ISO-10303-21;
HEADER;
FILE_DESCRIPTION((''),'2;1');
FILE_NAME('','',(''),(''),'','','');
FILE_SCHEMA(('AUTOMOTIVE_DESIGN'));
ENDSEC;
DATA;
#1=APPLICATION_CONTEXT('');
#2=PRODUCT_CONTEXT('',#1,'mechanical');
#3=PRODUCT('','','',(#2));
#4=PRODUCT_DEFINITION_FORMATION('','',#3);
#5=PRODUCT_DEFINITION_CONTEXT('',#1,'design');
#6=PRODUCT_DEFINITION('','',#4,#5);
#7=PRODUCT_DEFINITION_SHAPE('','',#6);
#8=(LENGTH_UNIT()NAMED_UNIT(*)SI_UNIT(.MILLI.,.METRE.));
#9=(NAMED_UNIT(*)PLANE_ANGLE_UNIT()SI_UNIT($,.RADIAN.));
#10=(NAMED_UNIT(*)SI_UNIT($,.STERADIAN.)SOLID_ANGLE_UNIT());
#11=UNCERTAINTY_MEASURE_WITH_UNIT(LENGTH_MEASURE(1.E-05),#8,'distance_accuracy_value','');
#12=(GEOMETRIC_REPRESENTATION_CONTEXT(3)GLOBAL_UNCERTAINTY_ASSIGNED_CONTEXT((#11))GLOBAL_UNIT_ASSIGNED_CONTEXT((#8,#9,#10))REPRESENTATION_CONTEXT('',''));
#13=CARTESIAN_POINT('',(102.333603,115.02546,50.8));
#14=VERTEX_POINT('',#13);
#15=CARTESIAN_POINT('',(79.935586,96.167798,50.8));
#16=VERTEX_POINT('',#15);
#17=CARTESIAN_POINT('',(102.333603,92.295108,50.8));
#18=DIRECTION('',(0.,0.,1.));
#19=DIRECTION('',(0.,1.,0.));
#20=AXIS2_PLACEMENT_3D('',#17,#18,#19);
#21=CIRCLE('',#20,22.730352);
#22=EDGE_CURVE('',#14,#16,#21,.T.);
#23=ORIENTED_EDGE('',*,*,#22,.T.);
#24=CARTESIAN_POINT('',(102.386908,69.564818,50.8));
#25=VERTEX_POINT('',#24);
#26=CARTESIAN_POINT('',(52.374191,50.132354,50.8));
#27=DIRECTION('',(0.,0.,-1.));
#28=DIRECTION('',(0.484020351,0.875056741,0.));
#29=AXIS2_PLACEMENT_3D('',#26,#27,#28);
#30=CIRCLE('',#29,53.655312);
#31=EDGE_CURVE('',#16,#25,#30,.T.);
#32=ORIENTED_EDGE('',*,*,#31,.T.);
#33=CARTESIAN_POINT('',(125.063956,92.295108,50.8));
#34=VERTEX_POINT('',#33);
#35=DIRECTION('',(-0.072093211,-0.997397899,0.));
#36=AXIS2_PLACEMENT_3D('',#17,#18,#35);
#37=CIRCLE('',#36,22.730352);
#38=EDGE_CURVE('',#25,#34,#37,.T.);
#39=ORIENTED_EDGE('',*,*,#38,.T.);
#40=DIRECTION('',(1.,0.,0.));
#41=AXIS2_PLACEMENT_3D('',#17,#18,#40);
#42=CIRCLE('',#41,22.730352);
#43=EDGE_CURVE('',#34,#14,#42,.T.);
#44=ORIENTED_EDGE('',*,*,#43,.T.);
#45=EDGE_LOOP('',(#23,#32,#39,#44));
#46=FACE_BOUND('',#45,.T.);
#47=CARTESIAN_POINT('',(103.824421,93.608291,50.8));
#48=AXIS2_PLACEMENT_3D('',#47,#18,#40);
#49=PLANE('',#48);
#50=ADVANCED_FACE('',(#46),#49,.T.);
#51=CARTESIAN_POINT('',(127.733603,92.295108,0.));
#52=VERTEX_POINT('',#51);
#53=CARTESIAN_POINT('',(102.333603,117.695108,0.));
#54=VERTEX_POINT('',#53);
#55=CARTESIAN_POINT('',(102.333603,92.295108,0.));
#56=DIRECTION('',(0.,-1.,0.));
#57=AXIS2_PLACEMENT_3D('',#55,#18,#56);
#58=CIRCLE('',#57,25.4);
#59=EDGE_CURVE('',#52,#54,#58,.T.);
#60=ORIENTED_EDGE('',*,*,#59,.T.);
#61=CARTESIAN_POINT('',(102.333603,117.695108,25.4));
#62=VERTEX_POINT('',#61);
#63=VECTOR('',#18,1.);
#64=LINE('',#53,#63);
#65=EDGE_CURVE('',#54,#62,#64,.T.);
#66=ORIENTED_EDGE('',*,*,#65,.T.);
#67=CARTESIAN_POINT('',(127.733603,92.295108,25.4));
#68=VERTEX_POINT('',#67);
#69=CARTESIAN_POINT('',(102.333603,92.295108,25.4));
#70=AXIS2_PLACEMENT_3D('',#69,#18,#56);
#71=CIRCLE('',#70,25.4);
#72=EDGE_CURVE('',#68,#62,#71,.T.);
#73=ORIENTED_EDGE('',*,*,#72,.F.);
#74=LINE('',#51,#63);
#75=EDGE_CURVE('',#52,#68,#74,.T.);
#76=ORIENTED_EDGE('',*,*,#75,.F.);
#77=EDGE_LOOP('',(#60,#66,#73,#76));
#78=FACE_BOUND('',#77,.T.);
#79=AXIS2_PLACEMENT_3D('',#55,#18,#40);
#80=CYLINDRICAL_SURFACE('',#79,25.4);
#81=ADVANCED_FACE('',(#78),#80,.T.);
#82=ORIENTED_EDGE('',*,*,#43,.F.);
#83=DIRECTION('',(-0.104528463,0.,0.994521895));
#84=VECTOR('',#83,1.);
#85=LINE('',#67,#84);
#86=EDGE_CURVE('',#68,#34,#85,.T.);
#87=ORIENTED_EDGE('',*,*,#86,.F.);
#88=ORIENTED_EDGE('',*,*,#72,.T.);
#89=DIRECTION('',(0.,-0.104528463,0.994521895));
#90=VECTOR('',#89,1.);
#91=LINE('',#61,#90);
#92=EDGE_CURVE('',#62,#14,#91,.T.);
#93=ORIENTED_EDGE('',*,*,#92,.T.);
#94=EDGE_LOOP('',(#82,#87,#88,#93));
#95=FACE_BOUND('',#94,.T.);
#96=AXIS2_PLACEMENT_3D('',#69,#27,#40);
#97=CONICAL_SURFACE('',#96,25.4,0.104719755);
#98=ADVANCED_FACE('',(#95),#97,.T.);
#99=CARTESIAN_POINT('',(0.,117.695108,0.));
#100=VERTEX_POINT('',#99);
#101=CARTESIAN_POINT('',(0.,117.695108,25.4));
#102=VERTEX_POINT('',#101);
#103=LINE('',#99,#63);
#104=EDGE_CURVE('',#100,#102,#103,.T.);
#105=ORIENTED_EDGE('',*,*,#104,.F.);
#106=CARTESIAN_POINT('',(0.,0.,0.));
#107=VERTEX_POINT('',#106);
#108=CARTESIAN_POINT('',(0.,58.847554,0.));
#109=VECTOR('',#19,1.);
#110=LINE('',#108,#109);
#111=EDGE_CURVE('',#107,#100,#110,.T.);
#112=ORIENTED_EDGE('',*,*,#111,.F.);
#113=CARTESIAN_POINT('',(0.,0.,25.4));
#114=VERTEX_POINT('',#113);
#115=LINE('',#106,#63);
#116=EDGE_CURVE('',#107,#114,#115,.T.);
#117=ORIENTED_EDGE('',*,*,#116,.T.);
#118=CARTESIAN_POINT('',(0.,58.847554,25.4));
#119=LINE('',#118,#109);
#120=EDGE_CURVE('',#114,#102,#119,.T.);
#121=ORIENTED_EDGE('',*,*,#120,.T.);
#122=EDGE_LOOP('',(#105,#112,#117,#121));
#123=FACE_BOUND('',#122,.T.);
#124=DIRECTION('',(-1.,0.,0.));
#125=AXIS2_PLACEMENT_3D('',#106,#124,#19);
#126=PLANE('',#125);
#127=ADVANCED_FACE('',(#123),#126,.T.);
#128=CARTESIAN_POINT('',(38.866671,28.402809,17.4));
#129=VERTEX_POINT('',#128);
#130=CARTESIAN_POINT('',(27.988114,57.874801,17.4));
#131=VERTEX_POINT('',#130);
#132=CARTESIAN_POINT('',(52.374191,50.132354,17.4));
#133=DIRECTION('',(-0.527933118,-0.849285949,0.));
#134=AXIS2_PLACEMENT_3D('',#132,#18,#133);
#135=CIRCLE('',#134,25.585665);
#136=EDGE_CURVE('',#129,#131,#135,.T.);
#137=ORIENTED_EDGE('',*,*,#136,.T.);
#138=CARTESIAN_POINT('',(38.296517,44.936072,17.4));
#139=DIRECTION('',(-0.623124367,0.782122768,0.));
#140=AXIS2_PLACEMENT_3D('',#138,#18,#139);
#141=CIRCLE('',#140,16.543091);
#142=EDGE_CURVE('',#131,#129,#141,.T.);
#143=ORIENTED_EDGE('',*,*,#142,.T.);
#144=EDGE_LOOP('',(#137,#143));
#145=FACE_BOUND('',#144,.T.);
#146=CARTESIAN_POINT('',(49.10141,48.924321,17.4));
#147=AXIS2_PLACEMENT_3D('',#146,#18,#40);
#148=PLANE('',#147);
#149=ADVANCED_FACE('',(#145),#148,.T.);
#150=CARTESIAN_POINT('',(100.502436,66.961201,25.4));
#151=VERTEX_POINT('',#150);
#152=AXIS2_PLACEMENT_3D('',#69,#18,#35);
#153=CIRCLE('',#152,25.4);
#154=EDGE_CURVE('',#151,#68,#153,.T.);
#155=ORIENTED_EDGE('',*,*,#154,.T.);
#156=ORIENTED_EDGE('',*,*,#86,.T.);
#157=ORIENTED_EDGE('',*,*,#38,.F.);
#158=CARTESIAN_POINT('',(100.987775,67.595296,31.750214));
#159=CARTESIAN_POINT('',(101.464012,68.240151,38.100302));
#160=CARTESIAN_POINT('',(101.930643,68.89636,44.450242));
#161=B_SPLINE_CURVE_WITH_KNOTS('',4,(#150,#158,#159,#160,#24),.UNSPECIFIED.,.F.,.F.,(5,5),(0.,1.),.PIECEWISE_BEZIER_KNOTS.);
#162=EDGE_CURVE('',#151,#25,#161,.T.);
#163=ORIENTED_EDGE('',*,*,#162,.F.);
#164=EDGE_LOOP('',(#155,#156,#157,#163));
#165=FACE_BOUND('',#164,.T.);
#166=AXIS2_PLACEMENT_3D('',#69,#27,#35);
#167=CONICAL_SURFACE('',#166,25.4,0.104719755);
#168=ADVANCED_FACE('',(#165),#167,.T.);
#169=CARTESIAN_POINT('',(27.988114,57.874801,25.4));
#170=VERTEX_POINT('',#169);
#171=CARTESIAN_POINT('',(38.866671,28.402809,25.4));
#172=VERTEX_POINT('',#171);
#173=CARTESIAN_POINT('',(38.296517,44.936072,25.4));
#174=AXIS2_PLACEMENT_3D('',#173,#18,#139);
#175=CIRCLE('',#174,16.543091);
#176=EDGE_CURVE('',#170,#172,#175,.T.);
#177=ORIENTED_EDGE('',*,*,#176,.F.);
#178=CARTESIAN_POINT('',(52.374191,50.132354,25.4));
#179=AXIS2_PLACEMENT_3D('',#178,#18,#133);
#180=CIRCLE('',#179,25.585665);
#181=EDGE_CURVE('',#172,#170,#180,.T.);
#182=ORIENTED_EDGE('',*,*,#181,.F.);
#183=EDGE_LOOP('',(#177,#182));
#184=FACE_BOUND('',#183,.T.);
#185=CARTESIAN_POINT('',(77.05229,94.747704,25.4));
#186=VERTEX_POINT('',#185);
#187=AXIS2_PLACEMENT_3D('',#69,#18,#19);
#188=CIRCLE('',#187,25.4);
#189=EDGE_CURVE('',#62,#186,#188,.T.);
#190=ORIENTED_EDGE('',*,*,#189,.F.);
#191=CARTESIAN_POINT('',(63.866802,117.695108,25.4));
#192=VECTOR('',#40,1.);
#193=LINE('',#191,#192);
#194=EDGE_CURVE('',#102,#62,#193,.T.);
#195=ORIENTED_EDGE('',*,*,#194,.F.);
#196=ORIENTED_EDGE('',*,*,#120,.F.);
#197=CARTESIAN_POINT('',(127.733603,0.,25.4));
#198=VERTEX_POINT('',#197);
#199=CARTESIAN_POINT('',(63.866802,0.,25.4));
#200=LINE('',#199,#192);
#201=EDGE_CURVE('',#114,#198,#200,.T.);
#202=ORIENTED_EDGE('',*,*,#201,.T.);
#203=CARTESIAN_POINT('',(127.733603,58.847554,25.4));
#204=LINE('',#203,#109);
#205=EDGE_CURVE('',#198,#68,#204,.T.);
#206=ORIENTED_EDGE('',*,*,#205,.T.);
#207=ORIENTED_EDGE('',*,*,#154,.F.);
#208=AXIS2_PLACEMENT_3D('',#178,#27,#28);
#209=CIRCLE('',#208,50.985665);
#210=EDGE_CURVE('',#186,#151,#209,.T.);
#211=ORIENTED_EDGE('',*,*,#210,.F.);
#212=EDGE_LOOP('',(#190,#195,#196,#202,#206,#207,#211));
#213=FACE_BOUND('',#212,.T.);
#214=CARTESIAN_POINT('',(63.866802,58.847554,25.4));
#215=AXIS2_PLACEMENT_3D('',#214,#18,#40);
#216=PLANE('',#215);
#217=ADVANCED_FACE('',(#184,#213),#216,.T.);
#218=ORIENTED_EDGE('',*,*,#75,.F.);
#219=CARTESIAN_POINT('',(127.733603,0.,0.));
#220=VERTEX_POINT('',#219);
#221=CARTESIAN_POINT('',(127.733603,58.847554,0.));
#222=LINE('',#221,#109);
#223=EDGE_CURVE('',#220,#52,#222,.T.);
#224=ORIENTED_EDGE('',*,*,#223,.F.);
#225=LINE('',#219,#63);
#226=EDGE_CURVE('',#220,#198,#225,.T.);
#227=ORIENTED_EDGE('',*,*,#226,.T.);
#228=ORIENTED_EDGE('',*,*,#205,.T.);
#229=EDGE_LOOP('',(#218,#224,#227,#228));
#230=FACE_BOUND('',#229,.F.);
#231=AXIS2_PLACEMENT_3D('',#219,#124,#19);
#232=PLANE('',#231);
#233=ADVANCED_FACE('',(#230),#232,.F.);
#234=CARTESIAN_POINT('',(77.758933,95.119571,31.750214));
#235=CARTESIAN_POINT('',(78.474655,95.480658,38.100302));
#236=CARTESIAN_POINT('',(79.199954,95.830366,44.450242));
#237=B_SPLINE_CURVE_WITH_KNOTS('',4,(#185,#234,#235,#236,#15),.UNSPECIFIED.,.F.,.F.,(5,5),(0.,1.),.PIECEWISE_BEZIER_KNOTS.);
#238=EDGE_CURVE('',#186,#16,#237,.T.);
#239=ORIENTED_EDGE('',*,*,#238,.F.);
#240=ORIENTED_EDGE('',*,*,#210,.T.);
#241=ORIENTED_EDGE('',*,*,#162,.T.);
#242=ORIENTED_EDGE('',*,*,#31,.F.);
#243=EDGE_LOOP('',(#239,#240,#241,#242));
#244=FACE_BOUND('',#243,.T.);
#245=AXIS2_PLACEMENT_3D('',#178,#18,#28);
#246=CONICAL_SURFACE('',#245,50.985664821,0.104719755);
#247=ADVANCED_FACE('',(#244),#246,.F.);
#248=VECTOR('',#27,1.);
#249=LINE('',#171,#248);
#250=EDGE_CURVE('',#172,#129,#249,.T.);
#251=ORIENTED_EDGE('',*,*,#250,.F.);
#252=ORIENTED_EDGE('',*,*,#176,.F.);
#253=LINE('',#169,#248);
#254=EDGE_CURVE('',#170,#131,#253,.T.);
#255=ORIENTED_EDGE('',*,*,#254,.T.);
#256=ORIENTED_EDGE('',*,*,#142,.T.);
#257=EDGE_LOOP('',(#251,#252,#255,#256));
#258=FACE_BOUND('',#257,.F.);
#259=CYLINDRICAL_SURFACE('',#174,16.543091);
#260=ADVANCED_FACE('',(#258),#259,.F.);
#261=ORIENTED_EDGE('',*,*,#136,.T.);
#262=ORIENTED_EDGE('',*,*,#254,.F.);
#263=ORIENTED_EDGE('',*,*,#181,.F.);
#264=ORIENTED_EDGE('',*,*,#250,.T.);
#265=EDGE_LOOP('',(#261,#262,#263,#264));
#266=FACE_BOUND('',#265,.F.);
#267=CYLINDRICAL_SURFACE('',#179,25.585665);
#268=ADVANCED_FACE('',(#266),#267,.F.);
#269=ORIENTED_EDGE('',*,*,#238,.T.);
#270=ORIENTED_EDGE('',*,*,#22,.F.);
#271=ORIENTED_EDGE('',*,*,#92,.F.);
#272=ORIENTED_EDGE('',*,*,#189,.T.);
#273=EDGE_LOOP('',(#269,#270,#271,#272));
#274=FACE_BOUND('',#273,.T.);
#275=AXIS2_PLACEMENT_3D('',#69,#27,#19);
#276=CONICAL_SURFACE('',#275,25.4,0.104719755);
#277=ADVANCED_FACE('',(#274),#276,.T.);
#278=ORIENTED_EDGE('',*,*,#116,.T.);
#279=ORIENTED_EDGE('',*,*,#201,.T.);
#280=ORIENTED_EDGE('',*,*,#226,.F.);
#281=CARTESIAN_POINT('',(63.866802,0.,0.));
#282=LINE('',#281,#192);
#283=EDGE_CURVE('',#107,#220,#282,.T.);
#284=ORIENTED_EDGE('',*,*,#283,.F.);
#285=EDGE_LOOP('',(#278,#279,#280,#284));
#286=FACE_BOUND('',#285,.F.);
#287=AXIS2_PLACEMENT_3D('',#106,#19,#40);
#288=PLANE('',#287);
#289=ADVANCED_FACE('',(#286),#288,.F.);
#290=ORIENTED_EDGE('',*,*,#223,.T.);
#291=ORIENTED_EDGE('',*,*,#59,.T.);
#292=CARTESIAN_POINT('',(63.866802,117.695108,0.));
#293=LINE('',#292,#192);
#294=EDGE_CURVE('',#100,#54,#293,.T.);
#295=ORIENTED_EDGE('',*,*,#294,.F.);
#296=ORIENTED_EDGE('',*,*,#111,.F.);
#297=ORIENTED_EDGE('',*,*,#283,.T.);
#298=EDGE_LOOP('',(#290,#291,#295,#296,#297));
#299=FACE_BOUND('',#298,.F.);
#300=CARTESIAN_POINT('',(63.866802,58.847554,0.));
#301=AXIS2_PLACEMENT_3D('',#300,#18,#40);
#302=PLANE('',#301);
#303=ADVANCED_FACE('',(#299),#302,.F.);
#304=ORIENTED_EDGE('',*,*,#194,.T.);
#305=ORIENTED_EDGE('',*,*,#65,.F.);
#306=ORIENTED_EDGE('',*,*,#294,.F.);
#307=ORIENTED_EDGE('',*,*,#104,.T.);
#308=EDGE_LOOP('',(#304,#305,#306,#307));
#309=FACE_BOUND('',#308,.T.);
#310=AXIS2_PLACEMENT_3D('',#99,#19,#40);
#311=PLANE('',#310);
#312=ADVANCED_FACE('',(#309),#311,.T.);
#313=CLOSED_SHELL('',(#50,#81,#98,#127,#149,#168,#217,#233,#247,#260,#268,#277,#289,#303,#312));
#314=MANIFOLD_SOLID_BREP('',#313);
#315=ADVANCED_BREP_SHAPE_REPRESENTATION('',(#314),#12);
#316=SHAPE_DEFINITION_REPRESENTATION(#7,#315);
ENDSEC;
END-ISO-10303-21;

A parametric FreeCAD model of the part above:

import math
import FreeCAD as App
import Part
import Sketcher
from FreeCAD import Vector
Q = App.Units.Quantity


def edges_at(feature, points):
    """Names of the edges that pass closest to the given points."""
    edges = feature.Shape.Edges
    near = lambda p: min(range(len(edges)), key=lambda i: edges[i].distToShape(Part.Vertex(*p))[0])
    return sorted({f"Edge{near(p) + 1}" for p in points})

doc = App.newDocument("Part")
body = doc.addObject("PartDesign::Body", "Body")

# Sketch on XY plane
sketch1 = body.newObject("Sketcher::SketchObject", "Sketch")
sketch1.AttachmentSupport = (doc.getObject("XY_Plane"), [""])
sketch1.MapMode = "FlatFace"
sketch1.addGeometry([
    Part.LineSegment(Vector(0, 118, 0), Vector(0, 0, 0)),
    Part.LineSegment(Vector(0, 0, 0), Vector(128, 0, 0)),
    Part.LineSegment(Vector(128, 0, 0), Vector(128, 118, 0)),
    Part.LineSegment(Vector(128, 118, 0), Vector(0, 118, 0)),
], False)
sketch1.addConstraint([
    Sketcher.Constraint("Coincident", 0, 2, 1, 1),
    Sketcher.Constraint("Coincident", 1, 2, 2, 1),
    Sketcher.Constraint("Coincident", 2, 2, 3, 1),
    Sketcher.Constraint("Coincident", 3, 2, 0, 1),
    Sketcher.Constraint("Vertical", 0),
    Sketcher.Constraint("Horizontal", 1),
    Sketcher.Constraint("Vertical", 2),
    Sketcher.Constraint("Horizontal", 3),
    Sketcher.Constraint("Coincident", 0, 2, -1, 1),
    Sketcher.Constraint("DistanceY", 0, 2, 0, 1, Q("117.695108 mm")),
    Sketcher.Constraint("DistanceX", 1, 1, 1, 2, Q("127.733603 mm")),
])
pad1 = body.newObject("PartDesign::Pad", "Pad")
pad1.Profile = sketch1
pad1.Length = Q("1 in")
doc.recompute()

fillet = body.newObject("PartDesign::Fillet", "Fillet")
fillet.Base = (pad1, edges_at(pad1, [(127.734, 117.695, 12.7)]))
fillet.Radius = Q("1 in")

# Sketch on XY plane
sketch2 = body.newObject("Sketcher::SketchObject", "Sketch001")
sketch2.AttachmentSupport = (doc.getObject("XY_Plane"), [""])
sketch2.MapMode = "FlatFace"
sketch2.AttachmentOffset = App.Placement(Vector(0, 0, 1 * 25.4), App.Rotation())
sketch2.addGeometry([
    Part.ArcOfCircle(Part.Circle(Vector(52, 50, 0), Vector(0, 0, 1), 26), math.radians(-122), math.radians(162)),
    Part.ArcOfCircle(Part.Circle(Vector(38, 45, 0), Vector(0, 0, 1), 17), math.radians(129), math.radians(272)),
], False)
sketch2.addConstraint([
    Sketcher.Constraint("Coincident", 0, 1, 1, 2),
    Sketcher.Constraint("Coincident", 1, 1, 0, 2),
    Sketcher.Constraint("Radius", 1, Q("16.543091 mm")),
    Sketcher.Constraint("Radius", 0, Q("25.585665 mm")),
    Sketcher.Constraint("DistanceY", -1, 1, 1, 1, Q("57.874801 mm")),
    Sketcher.Constraint("DistanceX", -1, 1, 0, 3, Q("52.374191 mm")),
    Sketcher.Constraint("DistanceX", -1, 1, 0, 1, Q("38.866671 mm")),
    Sketcher.Constraint("DistanceY", -1, 1, 0, 1, Q("28.402809 mm")),
])
pocket1 = body.newObject("PartDesign::Pocket", "Pocket")
pocket1.Profile = sketch2
pocket1.Length = 8

# Sketch on XY plane
sketch3 = body.newObject("Sketcher::SketchObject", "Sketch002")
sketch3.AttachmentSupport = (doc.getObject("XY_Plane"), [""])
sketch3.MapMode = "FlatFace"
sketch3.AttachmentOffset = App.Placement(Vector(0, 0, 1 * 25.4), App.Rotation())
sketch3.addGeometry([
    Part.ArcOfCircle(Part.Circle(Vector(52, 50, 0), Vector(0, 0, 1), 51), math.radians(19), math.radians(61)),
    Part.ArcOfCircle(Part.Circle(Vector(102, 92, 0), Vector(0, 0, 1), 25), math.radians(-94), math.radians(0)),
    Part.ArcOfCircle(Part.Circle(Vector(102, 92, 0), Vector(0, 0, 1), 25), math.radians(0), math.radians(90)),
    Part.ArcOfCircle(Part.Circle(Vector(102, 92, 0), Vector(0, 0, 1), 25), math.radians(90), math.radians(174)),
], False)
sketch3.addConstraint([
    Sketcher.Constraint("Coincident", 0, 1, 1, 1),
    Sketcher.Constraint("Tangent", 1, 2, 2, 1),
    Sketcher.Constraint("Tangent", 2, 2, 3, 1),
    Sketcher.Constraint("Coincident", 3, 2, 0, 2),
    Sketcher.Constraint("Coincident", 3, 3, 1, 3),
    Sketcher.Constraint("Horizontal", 3, 3, 1, 2),
    Sketcher.Constraint("Vertical", 3, 3, 2, 2),
    Sketcher.Constraint("Radius", 1, Q("1 in")),
    Sketcher.Constraint("Radius", 0, Q("50.985665 mm")),
    Sketcher.Constraint("DistanceY", -1, 1, 0, 1, Q("66.961201 mm")),
    Sketcher.Constraint("DistanceX", -1, 1, 0, 3, Q("52.374191 mm")),
    Sketcher.Constraint("DistanceY", -1, 1, 1, 3, Q("92.295108 mm")),
    Sketcher.Constraint("DistanceX", -1, 1, 3, 2, Q("77.05229 mm")),
])
pad2 = body.newObject("PartDesign::Pad", "Pad001")
pad2.Profile = sketch3
pad2.Length = Q("1 in")
pad2.TaperAngle = -6

doc.recompute()
